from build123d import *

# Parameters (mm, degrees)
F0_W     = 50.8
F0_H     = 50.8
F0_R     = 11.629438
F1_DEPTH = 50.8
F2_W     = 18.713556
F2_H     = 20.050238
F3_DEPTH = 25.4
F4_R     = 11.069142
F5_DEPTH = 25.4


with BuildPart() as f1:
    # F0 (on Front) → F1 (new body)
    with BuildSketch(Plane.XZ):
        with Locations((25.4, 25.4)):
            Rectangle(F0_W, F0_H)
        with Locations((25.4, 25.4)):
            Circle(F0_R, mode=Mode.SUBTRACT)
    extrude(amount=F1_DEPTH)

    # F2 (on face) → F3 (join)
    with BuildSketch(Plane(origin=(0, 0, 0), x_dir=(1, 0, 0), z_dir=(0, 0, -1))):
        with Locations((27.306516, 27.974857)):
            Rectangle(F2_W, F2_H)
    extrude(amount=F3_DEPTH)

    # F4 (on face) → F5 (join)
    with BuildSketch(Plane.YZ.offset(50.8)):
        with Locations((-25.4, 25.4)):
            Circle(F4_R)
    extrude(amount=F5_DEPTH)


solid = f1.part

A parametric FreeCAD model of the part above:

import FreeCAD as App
import Part
import Sketcher
from FreeCAD import Vector
Q = App.Units.Quantity


def add_polygon(sketch, points):
    """Adds a closed chain of lines whose ends are joined by coincident constraints."""
    first, n = sketch.GeometryCount, len(points)
    for a, b in zip(points, points[1:] + points[:1]):
        sketch.addGeometry(Part.LineSegment(App.Vector(*a, 0), App.Vector(*b, 0)), False)
    for i in range(n):
        sketch.addConstraint(Sketcher.Constraint("Coincident", first + i, 2, first + (i + 1) % n, 1))

doc = App.newDocument("Part")
body = doc.addObject("PartDesign::Body", "Body")

# Sketch on XZ plane
sketch1 = body.newObject("Sketcher::SketchObject", "Sketch")
sketch1.AttachmentSupport = (doc.getObject("XZ_Plane"), [""])
sketch1.MapMode = "FlatFace"
add_polygon(sketch1, [(0, 51), (0, 0), (51, 0), (51, 51)])  # lines 0-3
sketch1.addGeometry(Part.Circle(Vector(25, 25, 0), Vector(0, 0, 1), 12), False)  # 4
sketch1.addConstraint([
    Sketcher.Constraint("Vertical", 0),
    Sketcher.Constraint("Horizontal", 1),
    Sketcher.Constraint("Vertical", 2),
    Sketcher.Constraint("Horizontal", 3),
    Sketcher.Constraint("Coincident", 0, 2, -1, 1),
    Sketcher.Constraint("Equal", 3, 0),
    Sketcher.Constraint("DistanceX", 1, 1, 1, 2, Q("2 in")),
    Sketcher.Constraint("DistanceX", -1, 1, 4, 3, Q("1 in")),
    Sketcher.Constraint("DistanceY", -1, 1, 4, 3, Q("1 in")),
    Sketcher.Constraint("Diameter", 4, Q("23.258876 mm")),
])
pad1 = body.newObject("PartDesign::Pad", "Pad")
pad1.Profile = sketch1
pad1.Length = Q("2 in")

# Sketch on XY plane
sketch2 = body.newObject("Sketcher::SketchObject", "Sketch001")
sketch2.AttachmentSupport = (doc.getObject("XY_Plane"), [""])
sketch2.MapMode = "FlatFace"
add_polygon(sketch2, [(18, -38), (18, -18), (37, -18), (37, -38)])  # lines 0-3
sketch2.addConstraint([
    Sketcher.Constraint("Vertical", 0),
    Sketcher.Constraint("Horizontal", 1),
    Sketcher.Constraint("Vertical", 2),
    Sketcher.Constraint("Horizontal", 3),
    Sketcher.Constraint("DistanceX", 1, 1, 1, 2, Q("18.713556 mm")),
    Sketcher.Constraint("DistanceY", 0, 1, 0, 2, Q("20.050238 mm")),
    Sketcher.Constraint("DistanceX", -1, 1, 0, 2, Q("17.949738 mm")),
    Sketcher.Constraint("DistanceY", 0, 2, -1, 1, Q("17.949738 mm")),
])
pad2 = body.newObject("PartDesign::Pad", "Pad001")
pad2.Profile = sketch2
pad2.Length = Q("1 in")
pad2.Reversed = True

# Sketch on YZ plane
sketch3 = body.newObject("Sketcher::SketchObject", "Sketch002")
sketch3.AttachmentSupport = (doc.getObject("YZ_Plane"), [""])
sketch3.MapMode = "FlatFace"
sketch3.AttachmentOffset = App.Placement(Vector(0, 0, 2 * 25.4), App.Rotation())
sketch3.addGeometry(Part.Circle(Vector(-25, 25, 0), Vector(0, 0, 1), 11), False)
sketch3.addConstraint([
    Sketcher.Constraint("DistanceX", 0, 3, -1, 1, Q("1 in")),
    Sketcher.Constraint("DistanceY", -1, 1, 0, 3, Q("1 in")),
    Sketcher.Constraint("Diameter", 0, Q("22.138284 mm")),
])
pad3 = body.newObject("PartDesign::Pad", "Pad002")
pad3.Profile = sketch3
pad3.Length = Q("1 in")

doc.recompute()
